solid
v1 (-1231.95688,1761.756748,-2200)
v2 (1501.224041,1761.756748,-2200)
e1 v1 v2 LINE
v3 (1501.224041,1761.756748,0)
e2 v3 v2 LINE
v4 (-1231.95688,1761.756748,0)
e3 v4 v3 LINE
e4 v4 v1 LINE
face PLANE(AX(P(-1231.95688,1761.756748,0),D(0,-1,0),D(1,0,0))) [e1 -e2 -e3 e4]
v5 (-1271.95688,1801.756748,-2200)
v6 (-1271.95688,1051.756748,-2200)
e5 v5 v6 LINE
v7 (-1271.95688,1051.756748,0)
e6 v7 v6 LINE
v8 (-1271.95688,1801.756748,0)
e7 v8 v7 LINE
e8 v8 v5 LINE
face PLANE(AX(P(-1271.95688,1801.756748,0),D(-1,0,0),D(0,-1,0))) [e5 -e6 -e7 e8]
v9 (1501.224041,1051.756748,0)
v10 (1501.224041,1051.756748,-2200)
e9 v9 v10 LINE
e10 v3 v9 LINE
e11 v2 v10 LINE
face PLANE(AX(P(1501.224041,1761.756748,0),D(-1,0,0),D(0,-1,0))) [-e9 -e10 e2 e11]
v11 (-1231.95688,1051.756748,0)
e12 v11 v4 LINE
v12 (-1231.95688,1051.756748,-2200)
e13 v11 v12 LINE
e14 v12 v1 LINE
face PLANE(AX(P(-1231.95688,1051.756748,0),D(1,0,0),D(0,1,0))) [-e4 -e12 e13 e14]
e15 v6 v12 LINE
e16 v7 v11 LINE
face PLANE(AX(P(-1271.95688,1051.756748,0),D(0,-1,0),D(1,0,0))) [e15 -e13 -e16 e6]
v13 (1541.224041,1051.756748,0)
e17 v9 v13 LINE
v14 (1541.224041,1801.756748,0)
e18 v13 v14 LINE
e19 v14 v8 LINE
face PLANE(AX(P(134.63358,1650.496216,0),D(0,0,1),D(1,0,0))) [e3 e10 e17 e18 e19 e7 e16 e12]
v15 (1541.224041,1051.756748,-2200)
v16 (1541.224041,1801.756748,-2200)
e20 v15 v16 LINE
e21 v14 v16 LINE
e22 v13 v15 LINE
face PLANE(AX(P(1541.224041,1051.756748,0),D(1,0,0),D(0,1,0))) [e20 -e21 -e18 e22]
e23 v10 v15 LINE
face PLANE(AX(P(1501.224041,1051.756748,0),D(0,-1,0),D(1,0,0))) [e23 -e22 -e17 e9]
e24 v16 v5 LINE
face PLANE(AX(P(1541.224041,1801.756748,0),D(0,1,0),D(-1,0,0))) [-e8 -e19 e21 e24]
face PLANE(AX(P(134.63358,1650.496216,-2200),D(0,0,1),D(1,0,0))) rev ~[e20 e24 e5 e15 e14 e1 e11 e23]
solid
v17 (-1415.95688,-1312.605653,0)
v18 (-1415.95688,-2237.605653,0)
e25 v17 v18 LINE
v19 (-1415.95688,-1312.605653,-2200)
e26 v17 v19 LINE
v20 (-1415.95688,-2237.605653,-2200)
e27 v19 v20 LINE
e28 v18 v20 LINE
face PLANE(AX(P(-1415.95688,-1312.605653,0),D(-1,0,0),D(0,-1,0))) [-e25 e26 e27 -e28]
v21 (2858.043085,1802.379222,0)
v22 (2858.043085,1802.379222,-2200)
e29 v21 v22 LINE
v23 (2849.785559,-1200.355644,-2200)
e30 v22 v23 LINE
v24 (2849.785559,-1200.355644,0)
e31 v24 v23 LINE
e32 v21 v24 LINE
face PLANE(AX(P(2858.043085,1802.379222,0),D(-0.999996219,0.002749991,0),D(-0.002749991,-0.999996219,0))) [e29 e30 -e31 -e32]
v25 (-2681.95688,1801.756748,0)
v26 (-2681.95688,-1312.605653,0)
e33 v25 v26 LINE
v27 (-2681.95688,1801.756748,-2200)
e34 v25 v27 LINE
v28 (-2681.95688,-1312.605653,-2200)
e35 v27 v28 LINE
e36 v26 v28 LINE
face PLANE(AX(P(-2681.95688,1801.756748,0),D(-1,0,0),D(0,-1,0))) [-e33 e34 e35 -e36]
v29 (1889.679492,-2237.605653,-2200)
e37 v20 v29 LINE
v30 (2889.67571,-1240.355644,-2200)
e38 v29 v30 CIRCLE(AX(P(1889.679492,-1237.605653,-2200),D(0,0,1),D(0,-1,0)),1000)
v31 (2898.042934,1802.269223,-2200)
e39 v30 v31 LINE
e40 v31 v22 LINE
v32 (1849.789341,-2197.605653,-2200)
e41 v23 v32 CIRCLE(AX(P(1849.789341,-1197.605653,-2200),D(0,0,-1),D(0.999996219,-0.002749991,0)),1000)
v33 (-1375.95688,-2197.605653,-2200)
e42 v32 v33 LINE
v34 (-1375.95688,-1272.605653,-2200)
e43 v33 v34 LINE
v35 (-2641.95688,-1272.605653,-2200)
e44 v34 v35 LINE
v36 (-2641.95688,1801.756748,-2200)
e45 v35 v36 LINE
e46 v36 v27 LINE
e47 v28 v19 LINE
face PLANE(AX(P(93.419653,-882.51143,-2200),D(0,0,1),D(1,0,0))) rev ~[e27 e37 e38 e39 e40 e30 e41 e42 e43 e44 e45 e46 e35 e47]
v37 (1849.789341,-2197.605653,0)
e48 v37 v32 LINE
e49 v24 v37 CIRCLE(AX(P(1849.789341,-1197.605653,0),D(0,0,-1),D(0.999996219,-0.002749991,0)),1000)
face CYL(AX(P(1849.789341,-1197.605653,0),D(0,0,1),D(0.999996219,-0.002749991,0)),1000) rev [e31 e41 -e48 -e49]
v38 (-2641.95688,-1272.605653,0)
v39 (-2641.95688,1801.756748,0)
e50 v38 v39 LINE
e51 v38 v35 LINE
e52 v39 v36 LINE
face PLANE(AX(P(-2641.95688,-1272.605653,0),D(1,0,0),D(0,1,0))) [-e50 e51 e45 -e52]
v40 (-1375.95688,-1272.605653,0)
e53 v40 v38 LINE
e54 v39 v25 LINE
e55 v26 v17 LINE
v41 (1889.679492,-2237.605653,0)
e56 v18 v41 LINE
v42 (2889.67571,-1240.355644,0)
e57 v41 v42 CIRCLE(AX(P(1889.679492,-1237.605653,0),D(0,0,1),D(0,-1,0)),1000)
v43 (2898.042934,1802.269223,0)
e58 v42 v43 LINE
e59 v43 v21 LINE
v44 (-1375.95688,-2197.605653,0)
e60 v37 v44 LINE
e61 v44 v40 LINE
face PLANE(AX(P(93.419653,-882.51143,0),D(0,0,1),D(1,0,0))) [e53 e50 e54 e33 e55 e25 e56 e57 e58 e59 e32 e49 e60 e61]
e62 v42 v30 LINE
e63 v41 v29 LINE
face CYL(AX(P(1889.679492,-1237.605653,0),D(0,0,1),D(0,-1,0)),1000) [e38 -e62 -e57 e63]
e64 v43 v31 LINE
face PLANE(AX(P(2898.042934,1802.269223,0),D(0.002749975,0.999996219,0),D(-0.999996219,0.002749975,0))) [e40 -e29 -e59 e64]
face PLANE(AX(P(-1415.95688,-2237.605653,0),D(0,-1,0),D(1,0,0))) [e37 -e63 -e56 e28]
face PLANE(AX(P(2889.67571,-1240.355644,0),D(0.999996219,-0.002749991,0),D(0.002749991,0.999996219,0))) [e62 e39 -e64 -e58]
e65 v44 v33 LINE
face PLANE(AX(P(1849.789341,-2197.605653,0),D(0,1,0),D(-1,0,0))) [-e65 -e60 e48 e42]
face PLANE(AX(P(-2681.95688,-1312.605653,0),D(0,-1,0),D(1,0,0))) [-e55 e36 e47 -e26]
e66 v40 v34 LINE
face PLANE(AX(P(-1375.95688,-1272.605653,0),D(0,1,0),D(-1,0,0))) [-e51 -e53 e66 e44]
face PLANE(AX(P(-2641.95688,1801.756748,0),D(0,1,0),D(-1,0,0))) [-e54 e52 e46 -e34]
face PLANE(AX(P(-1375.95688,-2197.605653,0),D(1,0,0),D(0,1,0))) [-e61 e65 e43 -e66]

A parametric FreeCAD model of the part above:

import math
import FreeCAD as App
import Part
import Sketcher
from FreeCAD import Vector


def add_polygon(sketch, points):
    """Adds a closed chain of lines whose ends are joined by coincident constraints."""
    first, n = sketch.GeometryCount, len(points)
    for a, b in zip(points, points[1:] + points[:1]):
        sketch.addGeometry(Part.LineSegment(App.Vector(*a, 0), App.Vector(*b, 0)), False)
    for i in range(n):
        sketch.addConstraint(Sketcher.Constraint("Coincident", first + i, 2, first + (i + 1) % n, 1))

doc = App.newDocument("Part")
body = doc.addObject("PartDesign::Body", "Body")
body.AllowCompound = True

# Sketch on XY plane
sketch1 = doc.addObject("Sketcher::SketchObject", "Sketch")
body.addObject(sketch1)
sketch1.AttachmentSupport = (doc.XY_Plane, [""])
sketch1.MapMode = "FlatFace"
sketch1.addGeometry(Part.LineSegment(Vector(2898.042934, 1802.269223, 0), Vector(2858.043085, 1802.379222, 0)), False)  # 0
sketch1.addGeometry(Part.LineSegment(Vector(2858.043085, 1802.379222, 0), Vector(2849.785559, -1200.355644, 0)), False)  # 1
sketch1.addGeometry(Part.ArcOfCircle(Part.Circle(Vector(1849.789341, -1197.605653, 0), Vector(0, 0, 1), 1000), math.radians(-90), math.radians(-0.157563)), False)  # 2
sketch1.addGeometry(Part.LineSegment(Vector(1849.789341, -2197.605653, 0), Vector(-1375.95688, -2197.605653, 0)), False)  # 3
sketch1.addGeometry(Part.LineSegment(Vector(-1375.95688, -2197.605653, 0), Vector(-1375.95688, -1272.605653, 0)), False)  # 4
sketch1.addGeometry(Part.LineSegment(Vector(-1375.95688, -1272.605653, 0), Vector(-2641.95688, -1272.605653, 0)), False)  # 5
sketch1.addGeometry(Part.LineSegment(Vector(-2641.95688, -1272.605653, 0), Vector(-2641.95688, 1801.756748, 0)), False)  # 6
sketch1.addGeometry(Part.LineSegment(Vector(-2641.95688, 1801.756748, 0), Vector(-2681.95688, 1801.756748, 0)), False)  # 7
sketch1.addGeometry(Part.LineSegment(Vector(-2681.95688, 1801.756748, 0), Vector(-2681.95688, -1312.605653, 0)), False)  # 8
sketch1.addGeometry(Part.LineSegment(Vector(-2681.95688, -1312.605653, 0), Vector(-1415.95688, -1312.605653, 0)), False)  # 9
sketch1.addGeometry(Part.LineSegment(Vector(-1415.95688, -1312.605653, 0), Vector(-1415.95688, -2237.605653, 0)), False)  # 10
sketch1.addGeometry(Part.LineSegment(Vector(-1415.95688, -2237.605653, 0), Vector(1889.679492, -2237.605653, 0)), False)  # 11
sketch1.addGeometry(Part.ArcOfCircle(Part.Circle(Vector(1889.679492, -1237.605653, 0), Vector(0, 0, 1), 1000), math.radians(-90), math.radians(-0.157563)), False)  # 12
sketch1.addGeometry(Part.LineSegment(Vector(2889.67571, -1240.355644, 0), Vector(2898.042934, 1802.269223, 0)), False)  # 13
add_polygon(sketch1, [(1541.224041, 1051.756748), (1541.224041, 1801.756748), (-1271.95688, 1801.756748), (-1271.95688, 1051.756748), (-1231.95688, 1051.756748), (-1231.95688, 1761.756748), (1501.224041, 1761.756748), (1501.224041, 1051.756748)])  # lines 14-21
sketch1.addConstraint([
    Sketcher.Constraint("Coincident", 0, 2, 1, 1),
    Sketcher.Constraint("Coincident", 1, 2, 2, 2),
    Sketcher.Constraint("Coincident", 2, 1, 3, 1),
    Sketcher.Constraint("Coincident", 3, 2, 4, 1),
    Sketcher.Constraint("Coincident", 4, 2, 5, 1),
    Sketcher.Constraint("Coincident", 5, 2, 6, 1),
    Sketcher.Constraint("Coincident", 6, 2, 7, 1),
    Sketcher.Constraint("Coincident", 7, 2, 8, 1),
    Sketcher.Constraint("Coincident", 8, 2, 9, 1),
    Sketcher.Constraint("Coincident", 9, 2, 10, 1),
    Sketcher.Constraint("Coincident", 10, 2, 11, 1),
    Sketcher.Constraint("Coincident", 11, 2, 12, 1),
    Sketcher.Constraint("Coincident", 12, 2, 13, 1),
    Sketcher.Constraint("Coincident", 13, 2, 0, 1),
    Sketcher.Constraint("Horizontal", 3),
    Sketcher.Constraint("Vertical", 4),
    Sketcher.Constraint("Horizontal", 5),
    Sketcher.Constraint("Vertical", 6),
    Sketcher.Constraint("Horizontal", 7),
    Sketcher.Constraint("Vertical", 8),
    Sketcher.Constraint("Horizontal", 9),
    Sketcher.Constraint("Vertical", 10),
    Sketcher.Constraint("Horizontal", 11),
    Sketcher.Constraint("Vertical", 14),
    Sketcher.Constraint("Horizontal", 15),
    Sketcher.Constraint("Vertical", 16),
    Sketcher.Constraint("Horizontal", 17),
    Sketcher.Constraint("Vertical", 18),
    Sketcher.Constraint("Horizontal", 19),
    Sketcher.Constraint("Vertical", 20),
    Sketcher.Constraint("Horizontal", 21),
    Sketcher.Constraint("Equal", 2, 12),
    Sketcher.Constraint("Perpendicular", 0, 1),
    Sketcher.Constraint("Parallel", 1, 13),
    Sketcher.Constraint("Horizontal", 7, 2, 14, 2),
    Sketcher.Constraint("Horizontal", 17, 2, 20, 2),
    Sketcher.Constraint("Vertical", 12, 3, 11, 2),
    Sketcher.Constraint("Equal", 5, 9),
    Sketcher.Constraint("Equal", 7, 17),
    Sketcher.Constraint("Equal", 17, 21),
    Sketcher.Constraint("Equal", 4, 10),
    Sketcher.Constraint("Radius", 2, 1000.0),
    Sketcher.Constraint("DistanceX", 5, 2, 5, 1, 1266.0),
    Sketcher.Constraint("DistanceX", 7, 2, 7, 1, 40.0),
    Sketcher.Constraint("DistanceY", 4, 1, 4, 2, 925.0),
    Sketcher.Constraint("DistanceY", 14, 1, 14, 2, 750.0),
    Sketcher.Constraint("DistanceY", 18, 1, 18, 2, 710.0),
    Sketcher.Constraint("Distance", 0, 40.0),
    Sketcher.Constraint("DistanceY", 12, 3, 2, 3, 40.0),
    Sketcher.Constraint("DistanceX", 6, 2, 15, 2, 1370.0),
    Sketcher.Constraint("DistanceY", 13, 2, 0, 2, 0.109999),
    Sketcher.Constraint("DistanceY", 6, 1, 6, 2, 3074.362401),
    Sketcher.Constraint("DistanceX", 3, 2, 3, 1, 3225.746221),
    Sketcher.Constraint("DistanceX", 11, 1, 11, 2, 3305.636372),
    Sketcher.Constraint("DistanceX", 15, 2, 15, 1, 2813.180921),
    Sketcher.Constraint("Distance", 1, 3002.74622),
    Sketcher.Constraint("Distance", 13, 3042.636372),
    Sketcher.Constraint("DistanceX", -1, 1, 2, 3, 1849.789341),
    Sketcher.Constraint("DistanceY", -1, 1, 0, 2, 1802.379222),
    Sketcher.Constraint("DistanceY", -1, 1, 6, 2, 1801.756748),
])
pad1 = doc.addObject("PartDesign::Pad", "Pad")
body.addObject(pad1)
pad1.Profile = sketch1
pad1.Length = 2200
pad1.Reversed = True

doc.recompute()
